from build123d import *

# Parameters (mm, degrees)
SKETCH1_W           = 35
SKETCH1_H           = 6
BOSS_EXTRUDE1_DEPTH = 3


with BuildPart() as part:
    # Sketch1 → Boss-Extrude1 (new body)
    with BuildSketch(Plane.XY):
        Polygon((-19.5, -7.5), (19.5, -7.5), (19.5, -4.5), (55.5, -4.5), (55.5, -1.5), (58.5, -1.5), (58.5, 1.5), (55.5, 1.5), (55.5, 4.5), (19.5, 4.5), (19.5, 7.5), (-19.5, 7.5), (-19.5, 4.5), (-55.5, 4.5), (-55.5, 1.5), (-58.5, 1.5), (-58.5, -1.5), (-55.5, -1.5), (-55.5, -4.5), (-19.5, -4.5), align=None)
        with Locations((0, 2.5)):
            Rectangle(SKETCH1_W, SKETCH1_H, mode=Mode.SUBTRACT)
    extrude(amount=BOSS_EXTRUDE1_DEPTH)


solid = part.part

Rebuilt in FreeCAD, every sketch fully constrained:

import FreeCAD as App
import Part
import Sketcher
Q = App.Units.Quantity

doc = App.newDocument("Part")
body = doc.addObject("PartDesign::Body", "Body")

sketch1 = body.newObject("Sketcher::SketchObject", "Sketch")
sketch1.AttachmentSupport = (doc.getObject("XY_Plane"), [""])
sketch1.MapMode = "FlatFace"
sketch1.addGeometry(Part.LineSegment(App.Vector(-19.5, -7.5, 0), App.Vector(19.5, -7.5, 0)), False)
sketch1.addGeometry(Part.LineSegment(App.Vector(19.5, -7.5, 0), App.Vector(19.5, -4.5, 0)), False)
sketch1.addGeometry(Part.LineSegment(App.Vector(19.5, -4.5, 0), App.Vector(55.5, -4.5, 0)), False)
sketch1.addGeometry(Part.LineSegment(App.Vector(55.5, -4.5, 0), App.Vector(55.5, -1.5, 0)), False)
sketch1.addGeometry(Part.LineSegment(App.Vector(55.5, -1.5, 0), App.Vector(58.5, -1.5, 0)), False)
sketch1.addGeometry(Part.LineSegment(App.Vector(58.5, -1.5, 0), App.Vector(58.5, 1.5, 0)), False)
sketch1.addGeometry(Part.LineSegment(App.Vector(58.5, 1.5, 0), App.Vector(55.5, 1.5, 0)), False)
sketch1.addGeometry(Part.LineSegment(App.Vector(55.5, 1.5, 0), App.Vector(55.5, 4.5, 0)), False)
sketch1.addGeometry(Part.LineSegment(App.Vector(55.5, 4.5, 0), App.Vector(19.5, 4.5, 0)), False)
sketch1.addGeometry(Part.LineSegment(App.Vector(19.5, 4.5, 0), App.Vector(19.5, 7.5, 0)), False)
sketch1.addGeometry(Part.LineSegment(App.Vector(19.5, 7.5, 0), App.Vector(-19.5, 7.5, 0)), False)
sketch1.addGeometry(Part.LineSegment(App.Vector(-19.5, 7.5, 0), App.Vector(-19.5, 4.5, 0)), False)
sketch1.addGeometry(Part.LineSegment(App.Vector(-19.5, 4.5, 0), App.Vector(-55.5, 4.5, 0)), False)
sketch1.addGeometry(Part.LineSegment(App.Vector(-55.5, 4.5, 0), App.Vector(-55.5, 1.5, 0)), False)
sketch1.addGeometry(Part.LineSegment(App.Vector(-55.5, 1.5, 0), App.Vector(-58.5, 1.5, 0)), False)
sketch1.addGeometry(Part.LineSegment(App.Vector(-58.5, 1.5, 0), App.Vector(-58.5, -1.5, 0)), False)
sketch1.addGeometry(Part.LineSegment(App.Vector(-58.5, -1.5, 0), App.Vector(-55.5, -1.5, 0)), False)
sketch1.addGeometry(Part.LineSegment(App.Vector(-55.5, -1.5, 0), App.Vector(-55.5, -4.5, 0)), False)
sketch1.addGeometry(Part.LineSegment(App.Vector(-55.5, -4.5, 0), App.Vector(-19.5, -4.5, 0)), False)
sketch1.addGeometry(Part.LineSegment(App.Vector(-19.5, -4.5, 0), App.Vector(-19.5, -7.5, 0)), False)
sketch1.addGeometry(Part.LineSegment(App.Vector(17.5, -0.5, 0), App.Vector(-17.5, -0.5, 0)), False)
sketch1.addGeometry(Part.LineSegment(App.Vector(-17.5, -0.5, 0), App.Vector(-17.5, 5.5, 0)), False)
sketch1.addGeometry(Part.LineSegment(App.Vector(-17.5, 5.5, 0), App.Vector(17.5, 5.5, 0)), False)
sketch1.addGeometry(Part.LineSegment(App.Vector(17.5, 5.5, 0), App.Vector(17.5, -0.5, 0)), False)
sketch1.addConstraint(Sketcher.Constraint("Coincident", 0, 2, 1, 1))
sketch1.addConstraint(Sketcher.Constraint("Coincident", 1, 2, 2, 1))
sketch1.addConstraint(Sketcher.Constraint("Coincident", 2, 2, 3, 1))
sketch1.addConstraint(Sketcher.Constraint("Coincident", 3, 2, 4, 1))
sketch1.addConstraint(Sketcher.Constraint("Coincident", 4, 2, 5, 1))
sketch1.addConstraint(Sketcher.Constraint("Coincident", 5, 2, 6, 1))
sketch1.addConstraint(Sketcher.Constraint("Coincident", 6, 2, 7, 1))
sketch1.addConstraint(Sketcher.Constraint("Coincident", 7, 2, 8, 1))
sketch1.addConstraint(Sketcher.Constraint("Coincident", 8, 2, 9, 1))
sketch1.addConstraint(Sketcher.Constraint("Coincident", 9, 2, 10, 1))
sketch1.addConstraint(Sketcher.Constraint("Coincident", 10, 2, 11, 1))
sketch1.addConstraint(Sketcher.Constraint("Coincident", 11, 2, 12, 1))
sketch1.addConstraint(Sketcher.Constraint("Coincident", 12, 2, 13, 1))
sketch1.addConstraint(Sketcher.Constraint("Coincident", 13, 2, 14, 1))
sketch1.addConstraint(Sketcher.Constraint("Coincident", 14, 2, 15, 1))
sketch1.addConstraint(Sketcher.Constraint("Coincident", 15, 2, 16, 1))
sketch1.addConstraint(Sketcher.Constraint("Coincident", 16, 2, 17, 1))
sketch1.addConstraint(Sketcher.Constraint("Coincident", 17, 2, 18, 1))
sketch1.addConstraint(Sketcher.Constraint("Coincident", 18, 2, 19, 1))
sketch1.addConstraint(Sketcher.Constraint("Coincident", 19, 2, 0, 1))
sketch1.addConstraint(Sketcher.Constraint("Coincident", 20, 2, 21, 1))
sketch1.addConstraint(Sketcher.Constraint("Coincident", 21, 2, 22, 1))
sketch1.addConstraint(Sketcher.Constraint("Coincident", 22, 2, 23, 1))
sketch1.addConstraint(Sketcher.Constraint("Coincident", 23, 2, 20, 1))
sketch1.addConstraint(Sketcher.Constraint("Horizontal", 0))
sketch1.addConstraint(Sketcher.Constraint("Vertical", 1))
sketch1.addConstraint(Sketcher.Constraint("Horizontal", 2))
sketch1.addConstraint(Sketcher.Constraint("Vertical", 3))
sketch1.addConstraint(Sketcher.Constraint("Horizontal", 4))
sketch1.addConstraint(Sketcher.Constraint("Vertical", 5))
sketch1.addConstraint(Sketcher.Constraint("Horizontal", 6))
sketch1.addConstraint(Sketcher.Constraint("Vertical", 7))
sketch1.addConstraint(Sketcher.Constraint("Horizontal", 8))
sketch1.addConstraint(Sketcher.Constraint("Vertical", 9))
sketch1.addConstraint(Sketcher.Constraint("Horizontal", 10))
sketch1.addConstraint(Sketcher.Constraint("Vertical", 11))
sketch1.addConstraint(Sketcher.Constraint("Horizontal", 12))
sketch1.addConstraint(Sketcher.Constraint("Vertical", 13))
sketch1.addConstraint(Sketcher.Constraint("Horizontal", 14))
sketch1.addConstraint(Sketcher.Constraint("Vertical", 15))
sketch1.addConstraint(Sketcher.Constraint("Horizontal", 16))
sketch1.addConstraint(Sketcher.Constraint("Vertical", 17))
sketch1.addConstraint(Sketcher.Constraint("Horizontal", 18))
sketch1.addConstraint(Sketcher.Constraint("Vertical", 19))
sketch1.addConstraint(Sketcher.Constraint("Horizontal", 20))
sketch1.addConstraint(Sketcher.Constraint("Vertical", 21))
sketch1.addConstraint(Sketcher.Constraint("Horizontal", 22))
sketch1.addConstraint(Sketcher.Constraint("Vertical", 23))
sketch1.addConstraint(Sketcher.Constraint("Symmetric", 0, 2, 10, 2, -1, 1))
sketch1.addConstraint(Sketcher.Constraint("Symmetric", 2, 2, 12, 2, -1, 1))
sketch1.addConstraint(Sketcher.Constraint("Symmetric", 4, 2, 14, 2, -1, 1))
sketch1.addConstraint(Sketcher.Constraint("Symmetric", 6, 2, 16, 2, -1, 1))
sketch1.addConstraint(Sketcher.Constraint("Symmetric", 8, 2, 18, 2, -1, 1))
sketch1.addConstraint(Sketcher.Constraint("Symmetric", 8, 2, 11, 2, -2))
sketch1.addConstraint(Sketcher.Constraint("Symmetric", 6, 2, 13, 2, -2))
sketch1.addConstraint(Sketcher.Constraint("Equal", 16, 1))
sketch1.addConstraint(Sketcher.Constraint("Equal", 1, 3))
sketch1.addConstraint(Sketcher.Constraint("Equal", 3, 5))
sketch1.addConstraint(Sketcher.Constraint("DistanceX", 0, 1, 0, 2, Q("39 mm")))
sketch1.addConstraint(Sketcher.Constraint("DistanceX", 2, 1, 2, 2, Q("36 mm")))
sketch1.addConstraint(Sketcher.Constraint("DistanceX", 4, 1, 4, 2, Q("3 mm")))
sketch1.addConstraint(Sketcher.Constraint("DistanceX", 20, 2, 20, 1, Q("35 mm")))
sketch1.addConstraint(Sketcher.Constraint("DistanceY", 21, 1, 21, 2, Q("6 mm")))
sketch1.addConstraint(Sketcher.Constraint("DistanceX", 18, 2, 20, 2, Q("2 mm")))
sketch1.addConstraint(Sketcher.Constraint("DistanceY", 18, 2, 20, 2, Q("4 mm")))
pad1 = body.newObject("PartDesign::Pad", "Pad")
pad1.Profile = sketch1
pad1.Length = 3

doc.recompute()
